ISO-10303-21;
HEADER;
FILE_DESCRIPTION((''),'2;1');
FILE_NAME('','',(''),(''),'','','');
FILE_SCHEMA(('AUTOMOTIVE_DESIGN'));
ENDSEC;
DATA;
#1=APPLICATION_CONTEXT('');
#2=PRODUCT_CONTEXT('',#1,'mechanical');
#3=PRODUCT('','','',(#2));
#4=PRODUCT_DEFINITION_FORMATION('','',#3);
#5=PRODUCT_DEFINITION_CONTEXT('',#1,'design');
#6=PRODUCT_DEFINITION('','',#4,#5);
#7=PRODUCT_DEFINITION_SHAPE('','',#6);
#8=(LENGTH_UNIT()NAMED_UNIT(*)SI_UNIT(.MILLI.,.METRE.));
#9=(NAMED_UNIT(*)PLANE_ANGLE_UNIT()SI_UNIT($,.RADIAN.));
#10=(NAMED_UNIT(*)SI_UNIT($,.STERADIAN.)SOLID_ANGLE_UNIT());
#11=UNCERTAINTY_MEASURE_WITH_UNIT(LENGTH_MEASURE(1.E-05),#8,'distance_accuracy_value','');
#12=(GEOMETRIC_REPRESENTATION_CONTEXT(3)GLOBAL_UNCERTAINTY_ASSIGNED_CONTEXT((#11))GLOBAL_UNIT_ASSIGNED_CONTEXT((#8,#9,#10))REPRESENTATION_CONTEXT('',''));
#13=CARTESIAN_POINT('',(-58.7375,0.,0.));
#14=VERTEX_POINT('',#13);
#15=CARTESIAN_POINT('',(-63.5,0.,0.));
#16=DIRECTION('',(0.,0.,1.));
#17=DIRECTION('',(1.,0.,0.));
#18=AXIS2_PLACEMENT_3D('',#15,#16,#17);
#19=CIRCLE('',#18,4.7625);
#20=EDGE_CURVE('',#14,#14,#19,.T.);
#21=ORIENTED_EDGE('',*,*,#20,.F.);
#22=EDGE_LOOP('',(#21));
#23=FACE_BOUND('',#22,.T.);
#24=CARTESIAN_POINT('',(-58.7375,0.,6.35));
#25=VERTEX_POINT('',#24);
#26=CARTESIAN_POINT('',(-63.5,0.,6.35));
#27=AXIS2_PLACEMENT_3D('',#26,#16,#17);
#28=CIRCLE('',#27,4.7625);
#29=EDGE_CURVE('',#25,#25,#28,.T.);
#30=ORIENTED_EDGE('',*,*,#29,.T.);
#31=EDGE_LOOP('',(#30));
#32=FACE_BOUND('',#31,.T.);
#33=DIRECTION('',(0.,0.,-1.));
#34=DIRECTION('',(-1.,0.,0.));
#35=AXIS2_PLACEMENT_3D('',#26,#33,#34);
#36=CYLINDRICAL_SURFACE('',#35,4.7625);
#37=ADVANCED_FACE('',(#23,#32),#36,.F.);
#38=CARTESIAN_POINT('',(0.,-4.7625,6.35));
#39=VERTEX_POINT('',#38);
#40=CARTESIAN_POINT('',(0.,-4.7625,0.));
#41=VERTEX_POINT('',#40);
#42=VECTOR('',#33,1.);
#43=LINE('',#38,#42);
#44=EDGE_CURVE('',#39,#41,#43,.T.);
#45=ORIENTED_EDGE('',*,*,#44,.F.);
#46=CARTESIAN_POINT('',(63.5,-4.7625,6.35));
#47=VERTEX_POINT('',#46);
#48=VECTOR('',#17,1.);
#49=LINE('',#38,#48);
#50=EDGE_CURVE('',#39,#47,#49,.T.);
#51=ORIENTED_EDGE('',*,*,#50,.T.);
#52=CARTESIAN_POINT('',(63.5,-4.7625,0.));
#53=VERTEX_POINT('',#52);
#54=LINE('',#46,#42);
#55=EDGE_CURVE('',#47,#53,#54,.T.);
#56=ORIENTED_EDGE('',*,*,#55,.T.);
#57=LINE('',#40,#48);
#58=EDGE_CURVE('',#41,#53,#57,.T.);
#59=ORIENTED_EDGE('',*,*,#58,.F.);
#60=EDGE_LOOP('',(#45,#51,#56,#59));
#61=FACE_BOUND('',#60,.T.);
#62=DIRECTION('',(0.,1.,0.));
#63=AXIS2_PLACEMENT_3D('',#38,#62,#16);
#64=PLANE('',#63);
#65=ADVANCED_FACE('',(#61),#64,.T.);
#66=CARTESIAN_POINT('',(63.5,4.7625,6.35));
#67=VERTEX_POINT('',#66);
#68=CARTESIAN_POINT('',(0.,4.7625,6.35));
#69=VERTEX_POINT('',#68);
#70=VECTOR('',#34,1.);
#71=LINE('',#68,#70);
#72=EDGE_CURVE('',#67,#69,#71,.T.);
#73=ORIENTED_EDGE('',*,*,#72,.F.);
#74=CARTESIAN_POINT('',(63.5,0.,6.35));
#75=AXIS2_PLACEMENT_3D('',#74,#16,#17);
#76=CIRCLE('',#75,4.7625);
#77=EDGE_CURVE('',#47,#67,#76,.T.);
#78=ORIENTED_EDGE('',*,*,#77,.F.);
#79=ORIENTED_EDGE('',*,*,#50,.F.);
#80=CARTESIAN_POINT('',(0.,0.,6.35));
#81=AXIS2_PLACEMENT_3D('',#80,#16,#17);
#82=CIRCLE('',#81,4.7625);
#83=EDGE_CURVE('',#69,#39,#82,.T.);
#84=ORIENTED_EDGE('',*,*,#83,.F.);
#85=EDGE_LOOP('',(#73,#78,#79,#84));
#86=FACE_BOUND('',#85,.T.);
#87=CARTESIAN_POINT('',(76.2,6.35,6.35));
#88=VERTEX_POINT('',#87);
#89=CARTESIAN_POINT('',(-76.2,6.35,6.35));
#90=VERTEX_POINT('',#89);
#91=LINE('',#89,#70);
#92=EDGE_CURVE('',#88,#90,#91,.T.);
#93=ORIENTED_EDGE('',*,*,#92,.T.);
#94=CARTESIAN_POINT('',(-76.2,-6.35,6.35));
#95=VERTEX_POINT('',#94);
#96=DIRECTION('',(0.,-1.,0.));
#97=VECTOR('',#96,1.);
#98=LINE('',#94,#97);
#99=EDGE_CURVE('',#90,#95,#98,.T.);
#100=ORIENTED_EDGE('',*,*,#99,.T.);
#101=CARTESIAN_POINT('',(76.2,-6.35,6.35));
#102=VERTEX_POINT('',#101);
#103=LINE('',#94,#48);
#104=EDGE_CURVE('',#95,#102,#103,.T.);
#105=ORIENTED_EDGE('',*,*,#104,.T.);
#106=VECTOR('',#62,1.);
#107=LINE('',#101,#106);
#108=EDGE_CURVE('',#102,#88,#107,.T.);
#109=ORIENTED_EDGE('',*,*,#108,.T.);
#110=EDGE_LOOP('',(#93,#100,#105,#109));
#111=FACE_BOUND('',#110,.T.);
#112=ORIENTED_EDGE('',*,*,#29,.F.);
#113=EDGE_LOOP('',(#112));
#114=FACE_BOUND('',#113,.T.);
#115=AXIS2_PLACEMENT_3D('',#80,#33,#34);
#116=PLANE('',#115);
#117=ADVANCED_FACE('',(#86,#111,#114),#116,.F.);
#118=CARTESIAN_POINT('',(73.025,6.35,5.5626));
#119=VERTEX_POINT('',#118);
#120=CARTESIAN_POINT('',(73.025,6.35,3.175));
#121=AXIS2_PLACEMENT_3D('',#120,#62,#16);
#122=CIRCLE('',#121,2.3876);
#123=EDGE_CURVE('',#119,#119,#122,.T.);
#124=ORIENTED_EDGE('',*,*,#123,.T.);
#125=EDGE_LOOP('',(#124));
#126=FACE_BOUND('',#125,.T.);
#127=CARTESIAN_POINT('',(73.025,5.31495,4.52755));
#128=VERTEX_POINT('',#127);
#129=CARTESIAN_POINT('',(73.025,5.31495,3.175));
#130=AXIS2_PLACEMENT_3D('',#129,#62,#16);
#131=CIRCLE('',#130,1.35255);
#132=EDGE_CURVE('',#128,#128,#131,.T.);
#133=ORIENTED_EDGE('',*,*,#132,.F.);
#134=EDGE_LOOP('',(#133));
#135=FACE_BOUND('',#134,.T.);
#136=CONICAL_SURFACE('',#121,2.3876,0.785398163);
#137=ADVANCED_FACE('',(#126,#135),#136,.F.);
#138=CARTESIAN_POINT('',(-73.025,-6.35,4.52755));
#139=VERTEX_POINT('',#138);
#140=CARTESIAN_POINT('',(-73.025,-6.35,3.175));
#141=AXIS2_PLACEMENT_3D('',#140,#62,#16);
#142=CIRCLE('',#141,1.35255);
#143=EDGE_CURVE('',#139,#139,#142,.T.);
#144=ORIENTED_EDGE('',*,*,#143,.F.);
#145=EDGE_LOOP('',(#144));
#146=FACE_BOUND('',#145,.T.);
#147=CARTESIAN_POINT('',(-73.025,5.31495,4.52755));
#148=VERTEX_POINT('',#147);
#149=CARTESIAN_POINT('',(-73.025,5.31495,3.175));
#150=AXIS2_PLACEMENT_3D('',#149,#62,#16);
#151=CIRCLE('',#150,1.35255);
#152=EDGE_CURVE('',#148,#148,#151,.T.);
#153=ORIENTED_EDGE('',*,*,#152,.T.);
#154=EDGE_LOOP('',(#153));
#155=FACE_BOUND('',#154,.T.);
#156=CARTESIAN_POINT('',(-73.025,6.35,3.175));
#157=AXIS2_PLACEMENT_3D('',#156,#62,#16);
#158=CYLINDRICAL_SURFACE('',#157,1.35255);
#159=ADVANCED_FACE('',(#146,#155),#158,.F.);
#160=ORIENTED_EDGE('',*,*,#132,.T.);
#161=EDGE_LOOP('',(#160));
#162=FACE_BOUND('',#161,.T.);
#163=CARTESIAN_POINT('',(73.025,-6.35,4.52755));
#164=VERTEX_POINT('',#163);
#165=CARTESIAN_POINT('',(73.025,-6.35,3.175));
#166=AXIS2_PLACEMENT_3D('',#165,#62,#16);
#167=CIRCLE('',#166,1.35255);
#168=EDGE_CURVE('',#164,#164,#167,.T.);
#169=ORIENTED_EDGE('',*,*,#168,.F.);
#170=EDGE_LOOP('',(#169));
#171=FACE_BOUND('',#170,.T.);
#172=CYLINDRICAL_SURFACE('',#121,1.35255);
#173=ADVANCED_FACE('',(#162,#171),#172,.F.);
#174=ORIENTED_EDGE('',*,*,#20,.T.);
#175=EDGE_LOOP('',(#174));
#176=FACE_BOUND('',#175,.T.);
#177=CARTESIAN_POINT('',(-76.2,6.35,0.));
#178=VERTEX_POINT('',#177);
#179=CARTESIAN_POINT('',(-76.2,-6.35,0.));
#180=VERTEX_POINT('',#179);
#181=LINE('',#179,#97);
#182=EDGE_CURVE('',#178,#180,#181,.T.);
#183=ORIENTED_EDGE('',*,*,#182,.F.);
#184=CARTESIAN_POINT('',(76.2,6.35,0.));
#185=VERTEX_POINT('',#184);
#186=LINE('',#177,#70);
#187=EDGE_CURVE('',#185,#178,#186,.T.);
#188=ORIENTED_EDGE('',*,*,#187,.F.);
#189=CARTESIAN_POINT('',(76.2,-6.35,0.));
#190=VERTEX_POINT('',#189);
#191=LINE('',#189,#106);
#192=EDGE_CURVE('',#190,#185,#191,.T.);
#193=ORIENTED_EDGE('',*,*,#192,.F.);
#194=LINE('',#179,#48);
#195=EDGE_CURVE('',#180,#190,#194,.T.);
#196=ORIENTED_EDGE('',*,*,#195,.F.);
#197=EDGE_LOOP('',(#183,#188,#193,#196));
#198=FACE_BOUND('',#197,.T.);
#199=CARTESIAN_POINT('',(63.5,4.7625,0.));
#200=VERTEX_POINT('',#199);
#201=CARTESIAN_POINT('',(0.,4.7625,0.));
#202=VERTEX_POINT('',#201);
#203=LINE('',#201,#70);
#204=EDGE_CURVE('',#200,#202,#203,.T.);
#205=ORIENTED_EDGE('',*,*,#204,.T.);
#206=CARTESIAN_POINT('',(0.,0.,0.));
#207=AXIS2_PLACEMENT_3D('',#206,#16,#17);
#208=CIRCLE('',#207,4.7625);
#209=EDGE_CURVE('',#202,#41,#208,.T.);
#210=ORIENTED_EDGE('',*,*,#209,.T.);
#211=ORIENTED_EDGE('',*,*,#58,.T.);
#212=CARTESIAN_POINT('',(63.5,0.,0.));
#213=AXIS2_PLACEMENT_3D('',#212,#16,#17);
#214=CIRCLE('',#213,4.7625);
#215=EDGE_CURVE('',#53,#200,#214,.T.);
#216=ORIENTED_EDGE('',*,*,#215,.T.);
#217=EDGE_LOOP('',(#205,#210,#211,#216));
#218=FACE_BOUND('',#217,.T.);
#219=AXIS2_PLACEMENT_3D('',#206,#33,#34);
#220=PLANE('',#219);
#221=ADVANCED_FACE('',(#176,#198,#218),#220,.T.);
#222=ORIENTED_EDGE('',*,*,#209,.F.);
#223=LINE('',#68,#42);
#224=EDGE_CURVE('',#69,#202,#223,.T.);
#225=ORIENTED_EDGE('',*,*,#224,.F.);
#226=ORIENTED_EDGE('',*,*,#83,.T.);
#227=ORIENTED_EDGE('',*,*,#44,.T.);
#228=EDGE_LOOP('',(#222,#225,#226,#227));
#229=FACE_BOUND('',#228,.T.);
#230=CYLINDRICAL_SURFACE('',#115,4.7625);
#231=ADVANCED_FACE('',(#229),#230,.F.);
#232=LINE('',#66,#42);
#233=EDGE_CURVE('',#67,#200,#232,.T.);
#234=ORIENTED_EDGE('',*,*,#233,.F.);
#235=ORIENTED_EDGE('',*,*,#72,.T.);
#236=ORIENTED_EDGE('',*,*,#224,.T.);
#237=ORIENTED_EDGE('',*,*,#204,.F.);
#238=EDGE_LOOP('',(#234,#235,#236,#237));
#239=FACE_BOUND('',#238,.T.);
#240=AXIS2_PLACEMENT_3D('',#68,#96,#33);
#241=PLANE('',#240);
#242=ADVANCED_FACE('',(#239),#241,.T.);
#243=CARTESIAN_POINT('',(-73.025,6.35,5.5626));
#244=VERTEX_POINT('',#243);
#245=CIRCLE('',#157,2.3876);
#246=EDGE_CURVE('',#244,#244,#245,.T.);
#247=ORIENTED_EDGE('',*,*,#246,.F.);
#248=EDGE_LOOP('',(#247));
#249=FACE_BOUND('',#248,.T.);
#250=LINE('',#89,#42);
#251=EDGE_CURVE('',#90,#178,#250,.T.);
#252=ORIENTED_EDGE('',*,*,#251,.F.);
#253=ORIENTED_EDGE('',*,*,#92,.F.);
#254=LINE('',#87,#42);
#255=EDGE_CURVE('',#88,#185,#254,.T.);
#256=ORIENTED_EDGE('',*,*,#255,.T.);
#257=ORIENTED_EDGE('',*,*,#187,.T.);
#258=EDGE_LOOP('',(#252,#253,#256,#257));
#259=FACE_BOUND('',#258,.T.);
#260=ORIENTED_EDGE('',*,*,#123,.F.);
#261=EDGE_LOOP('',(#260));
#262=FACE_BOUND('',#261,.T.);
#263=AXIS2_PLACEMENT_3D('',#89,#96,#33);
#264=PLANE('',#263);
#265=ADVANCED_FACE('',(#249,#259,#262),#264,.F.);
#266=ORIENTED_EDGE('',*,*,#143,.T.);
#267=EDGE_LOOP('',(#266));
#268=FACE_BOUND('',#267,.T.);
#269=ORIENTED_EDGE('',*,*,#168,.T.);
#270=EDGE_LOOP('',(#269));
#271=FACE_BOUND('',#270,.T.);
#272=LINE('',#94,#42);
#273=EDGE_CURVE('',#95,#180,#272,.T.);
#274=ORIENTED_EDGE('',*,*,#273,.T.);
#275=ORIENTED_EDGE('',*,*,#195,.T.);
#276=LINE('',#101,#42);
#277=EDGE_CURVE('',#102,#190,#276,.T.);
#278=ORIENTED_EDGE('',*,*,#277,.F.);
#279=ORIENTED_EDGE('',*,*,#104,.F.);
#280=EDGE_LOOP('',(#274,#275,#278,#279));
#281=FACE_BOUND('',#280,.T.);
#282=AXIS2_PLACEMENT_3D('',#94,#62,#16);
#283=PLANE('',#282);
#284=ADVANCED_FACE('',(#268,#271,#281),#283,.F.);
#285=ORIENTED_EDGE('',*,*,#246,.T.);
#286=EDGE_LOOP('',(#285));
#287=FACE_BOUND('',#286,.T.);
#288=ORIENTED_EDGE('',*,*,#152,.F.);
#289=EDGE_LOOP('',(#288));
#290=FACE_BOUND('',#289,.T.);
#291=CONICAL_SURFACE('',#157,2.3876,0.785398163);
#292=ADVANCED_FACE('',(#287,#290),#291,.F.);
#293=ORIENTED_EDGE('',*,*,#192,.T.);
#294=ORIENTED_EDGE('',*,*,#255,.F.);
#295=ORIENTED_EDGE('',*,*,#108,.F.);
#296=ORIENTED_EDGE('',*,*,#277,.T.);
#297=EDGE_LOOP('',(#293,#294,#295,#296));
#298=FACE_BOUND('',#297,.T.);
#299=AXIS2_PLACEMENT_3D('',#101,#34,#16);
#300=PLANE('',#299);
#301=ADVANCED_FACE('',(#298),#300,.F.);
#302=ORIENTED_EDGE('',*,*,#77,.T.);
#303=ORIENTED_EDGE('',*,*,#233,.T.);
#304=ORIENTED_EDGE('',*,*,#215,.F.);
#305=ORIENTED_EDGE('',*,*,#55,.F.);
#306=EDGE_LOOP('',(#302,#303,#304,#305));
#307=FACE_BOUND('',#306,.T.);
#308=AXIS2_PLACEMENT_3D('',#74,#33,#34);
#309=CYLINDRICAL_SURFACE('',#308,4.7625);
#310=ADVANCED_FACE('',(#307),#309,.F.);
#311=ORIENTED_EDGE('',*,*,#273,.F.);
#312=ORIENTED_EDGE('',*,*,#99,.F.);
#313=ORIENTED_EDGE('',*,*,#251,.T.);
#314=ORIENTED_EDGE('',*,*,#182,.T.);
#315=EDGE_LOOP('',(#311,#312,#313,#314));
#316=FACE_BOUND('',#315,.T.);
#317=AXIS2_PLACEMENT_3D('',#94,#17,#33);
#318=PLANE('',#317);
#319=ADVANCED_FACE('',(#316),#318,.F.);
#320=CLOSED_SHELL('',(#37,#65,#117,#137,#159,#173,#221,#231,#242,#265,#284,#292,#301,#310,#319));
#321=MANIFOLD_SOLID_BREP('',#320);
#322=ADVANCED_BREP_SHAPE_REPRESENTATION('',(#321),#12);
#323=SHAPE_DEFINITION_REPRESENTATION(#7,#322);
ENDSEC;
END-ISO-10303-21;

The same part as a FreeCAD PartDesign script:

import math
import FreeCAD as App
import Part
import Sketcher

V = App.Vector
Q = App.Units.Quantity

doc = App.newDocument("Part")
body = doc.addObject("PartDesign::Body", "Body")

# Sketch on XY plane
sketch1 = body.newObject("Sketcher::SketchObject", "Sketch")
sketch1.AttachmentSupport = (doc.getObject("XY_Plane"), [""])
sketch1.MapMode = "FlatFace"
sketch1.addGeometry(Part.LineSegment(V(-76.2, 6.3, 0), V(-76.2, -6.3, 0)), False)
sketch1.addGeometry(Part.LineSegment(V(-76.2, -6.3, 0), V(76.2, -6.3, 0)), False)
sketch1.addGeometry(Part.LineSegment(V(76.2, -6.3, 0), V(76.2, 6.3, 0)), False)
sketch1.addGeometry(Part.LineSegment(V(76.2, 6.3, 0), V(-76.2, 6.3, 0)), False)
sketch1.addGeometry(Part.Circle(V(-63.5, 0, 0), V(0, 0, 1), 4.8), False)
sketch1.addGeometry(Part.LineSegment(V(63.5, -4.8, 0), V(0, -4.8, 0)), False)
sketch1.addGeometry(Part.ArcOfCircle(Part.Circle(V(0, 0, 0), V(0, 0, 1), 4.8), math.radians(90), math.radians(270)), False)
sketch1.addGeometry(Part.LineSegment(V(0, 4.8, 0), V(63.5, 4.8, 0)), False)
sketch1.addGeometry(Part.ArcOfCircle(Part.Circle(V(63.5, 0, 0), V(0, 0, 1), 4.8), math.radians(-90), math.radians(90)), False)
sketch1.addConstraint(Sketcher.Constraint("Coincident", 0, 2, 1, 1))
sketch1.addConstraint(Sketcher.Constraint("Coincident", 1, 2, 2, 1))
sketch1.addConstraint(Sketcher.Constraint("Coincident", 2, 2, 3, 1))
sketch1.addConstraint(Sketcher.Constraint("Coincident", 3, 2, 0, 1))
sketch1.addConstraint(Sketcher.Constraint("Tangent", 5, 2, 6, 2))
sketch1.addConstraint(Sketcher.Constraint("Tangent", 6, 1, 7, 1))
sketch1.addConstraint(Sketcher.Constraint("Tangent", 7, 2, 8, 2))
sketch1.addConstraint(Sketcher.Constraint("Tangent", 8, 1, 5, 1))
sketch1.addConstraint(Sketcher.Constraint("Vertical", 0))
sketch1.addConstraint(Sketcher.Constraint("Horizontal", 1))
sketch1.addConstraint(Sketcher.Constraint("Vertical", 2))
sketch1.addConstraint(Sketcher.Constraint("Horizontal", 3))
sketch1.addConstraint(Sketcher.Constraint("Horizontal", 5))
sketch1.addConstraint(Sketcher.Constraint("Horizontal", 7))
sketch1.addConstraint(Sketcher.Constraint("Coincident", 6, 3, -1, 1))
sketch1.addConstraint(Sketcher.Constraint("Equal", 4, 6))
sketch1.addConstraint(Sketcher.Constraint("Symmetric", 4, 3, 8, 3, -1, 1))
sketch1.addConstraint(Sketcher.Constraint("Symmetric", 0, 2, 2, 2, -1, 1))
sketch1.addConstraint(Sketcher.Constraint("DistanceX", 1, 1, 1, 2, Q("6 in")))
sketch1.addConstraint(Sketcher.Constraint("Diameter", 4, Q("0.375 in")))
sketch1.addConstraint(Sketcher.Constraint("DistanceX", 5, 2, 5, 1, Q("2.5 in")))
sketch1.addConstraint(Sketcher.Constraint("DistanceY", 0, 2, 0, 1, Q("0.5 in")))
pad1 = body.newObject("PartDesign::Pad", "Pad")
pad1.Profile = sketch1
pad1.Length = Q("0.25 in")

# Sketch on XZ plane
sketch2 = body.newObject("Sketcher::SketchObject", "Sketch001")
sketch2.AttachmentSupport = (doc.getObject("XZ_Plane"), [""])
sketch2.MapMode = "FlatFace"
sketch2.AttachmentOffset = App.Placement(V(0, 0, -0.25 * 25.4), App.Rotation())
sketch2.addGeometry(Part.Circle(V(-73, 3.2, 0), V(0, 0, 1), 1.4), False)
sketch2.addConstraint(Sketcher.Constraint("Diameter", 0, Q("0.1065 in")))
sketch2.addConstraint(Sketcher.Constraint("DistanceX", 0, 3, -1, 1, Q("2.875 in")))
sketch2.addConstraint(Sketcher.Constraint("DistanceY", -1, 1, 0, 3, Q("0.125 in")))
doc.recompute()
hole = body.newObject("PartDesign::Hole", "Hole")
hole.Profile = sketch2
hole.ThreadType = "None"
hole.Diameter = Q("0.1065 in")
hole.DepthType = "ThroughAll"
hole.HoleCutType = "Countersink"
hole.HoleCutDiameter = Q("0.188 in")
hole.HoleCutCountersinkAngle = 90
hole.Reversed = True

# Sketch on XZ plane
sketch3 = body.newObject("Sketcher::SketchObject", "Sketch002")
sketch3.AttachmentSupport = (doc.getObject("XZ_Plane"), [""])
sketch3.MapMode = "FlatFace"
sketch3.AttachmentOffset = App.Placement(V(0, 0, -0.25 * 25.4), App.Rotation())
sketch3.addGeometry(Part.Circle(V(73, 3.2, 0), V(0, 0, 1), 1.4), False)
sketch3.addConstraint(Sketcher.Constraint("Diameter", 0, Q("0.1065 in")))
sketch3.addConstraint(Sketcher.Constraint("DistanceX", -1, 1, 0, 3, Q("2.875 in")))
sketch3.addConstraint(Sketcher.Constraint("DistanceY", -1, 1, 0, 3, Q("0.125 in")))
doc.recompute()
hole2 = body.newObject("PartDesign::Hole", "Hole001")
hole2.Profile = sketch3
hole2.ThreadType = "None"
hole2.Diameter = Q("0.1065 in")
hole2.DepthType = "ThroughAll"
hole2.HoleCutType = "Countersink"
hole2.HoleCutDiameter = Q("0.188 in")
hole2.HoleCutCountersinkAngle = 90
hole2.Reversed = True

doc.recompute()
